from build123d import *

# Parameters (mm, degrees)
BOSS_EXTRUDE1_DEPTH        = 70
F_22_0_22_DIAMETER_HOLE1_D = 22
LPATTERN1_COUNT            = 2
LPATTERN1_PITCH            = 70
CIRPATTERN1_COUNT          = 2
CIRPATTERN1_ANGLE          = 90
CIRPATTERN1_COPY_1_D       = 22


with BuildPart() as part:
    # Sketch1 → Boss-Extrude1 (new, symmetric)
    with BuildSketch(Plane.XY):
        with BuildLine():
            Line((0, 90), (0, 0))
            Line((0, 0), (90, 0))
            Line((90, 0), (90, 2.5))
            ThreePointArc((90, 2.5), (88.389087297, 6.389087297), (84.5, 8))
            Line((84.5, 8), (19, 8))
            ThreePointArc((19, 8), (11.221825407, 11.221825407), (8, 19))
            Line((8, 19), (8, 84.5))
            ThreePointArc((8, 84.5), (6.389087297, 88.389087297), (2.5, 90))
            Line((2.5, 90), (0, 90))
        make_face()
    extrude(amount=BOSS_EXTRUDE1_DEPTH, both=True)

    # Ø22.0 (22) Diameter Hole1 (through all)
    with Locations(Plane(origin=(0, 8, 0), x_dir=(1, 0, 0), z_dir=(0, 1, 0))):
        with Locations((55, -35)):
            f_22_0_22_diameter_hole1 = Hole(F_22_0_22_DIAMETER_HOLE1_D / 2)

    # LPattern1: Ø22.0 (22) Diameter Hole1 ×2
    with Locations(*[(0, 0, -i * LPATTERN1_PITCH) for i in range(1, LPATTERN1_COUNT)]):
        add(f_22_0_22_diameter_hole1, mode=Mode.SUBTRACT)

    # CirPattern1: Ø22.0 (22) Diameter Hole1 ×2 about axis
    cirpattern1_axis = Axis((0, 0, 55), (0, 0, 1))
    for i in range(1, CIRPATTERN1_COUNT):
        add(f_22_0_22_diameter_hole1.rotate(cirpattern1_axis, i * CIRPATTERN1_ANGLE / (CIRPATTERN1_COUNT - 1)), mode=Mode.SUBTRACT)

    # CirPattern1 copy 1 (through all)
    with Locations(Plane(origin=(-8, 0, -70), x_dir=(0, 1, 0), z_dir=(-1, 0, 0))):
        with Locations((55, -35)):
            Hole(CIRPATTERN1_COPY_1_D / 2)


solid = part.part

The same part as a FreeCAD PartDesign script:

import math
import FreeCAD as App
import Part
import Sketcher

doc = App.newDocument("Part")
body = doc.addObject("PartDesign::Body", "Body")

# Sketch on XY plane
sketch1 = doc.addObject("Sketcher::SketchObject", "Sketch")
body.addObject(sketch1)
sketch1.AttachmentSupport = (doc.XY_Plane, [""])
sketch1.MapMode = "FlatFace"
sketch1.addGeometry(Part.LineSegment(App.Vector(0, 90, 0), App.Vector(0, 0, 0)), False)
sketch1.addGeometry(Part.LineSegment(App.Vector(0, 0, 0), App.Vector(90, 0, 0)), False)
sketch1.addGeometry(Part.LineSegment(App.Vector(90, 0, 0), App.Vector(90, 2.5, 0)), False)
sketch1.addGeometry(Part.ArcOfCircle(Part.Circle(App.Vector(84.5, 2.5, 0), App.Vector(0, 0, 1), 5.5), math.radians(0), math.radians(90)), False)
sketch1.addGeometry(Part.LineSegment(App.Vector(84.5, 8, 0), App.Vector(19, 8, 0)), False)
sketch1.addGeometry(Part.ArcOfCircle(Part.Circle(App.Vector(19, 19, 0), App.Vector(0, 0, 1), 11), math.radians(180), math.radians(270)), False)
sketch1.addGeometry(Part.LineSegment(App.Vector(8, 19, 0), App.Vector(8, 84.5, 0)), False)
sketch1.addGeometry(Part.ArcOfCircle(Part.Circle(App.Vector(2.5, 84.5, 0), App.Vector(0, 0, 1), 5.5), math.radians(0), math.radians(90)), False)
sketch1.addGeometry(Part.LineSegment(App.Vector(2.5, 90, 0), App.Vector(0, 90, 0)), False)
sketch1.addConstraint(Sketcher.Constraint("Coincident", 0, 2, 1, 1))
sketch1.addConstraint(Sketcher.Constraint("Coincident", 1, 2, 2, 1))
sketch1.addConstraint(Sketcher.Constraint("Tangent", 2, 2, 3, 1))
sketch1.addConstraint(Sketcher.Constraint("Tangent", 3, 2, 4, 1))
sketch1.addConstraint(Sketcher.Constraint("Tangent", 4, 2, 5, 2))
sketch1.addConstraint(Sketcher.Constraint("Tangent", 5, 1, 6, 1))
sketch1.addConstraint(Sketcher.Constraint("Tangent", 6, 2, 7, 1))
sketch1.addConstraint(Sketcher.Constraint("Tangent", 7, 2, 8, 1))
sketch1.addConstraint(Sketcher.Constraint("Coincident", 8, 2, 0, 1))
sketch1.addConstraint(Sketcher.Constraint("Vertical", 0))
sketch1.addConstraint(Sketcher.Constraint("Horizontal", 1))
sketch1.addConstraint(Sketcher.Constraint("Vertical", 2))
sketch1.addConstraint(Sketcher.Constraint("Horizontal", 4))
sketch1.addConstraint(Sketcher.Constraint("Vertical", 6))
sketch1.addConstraint(Sketcher.Constraint("Horizontal", 8))
sketch1.addConstraint(Sketcher.Constraint("Coincident", 0, 2, -1, 1))
sketch1.addConstraint(Sketcher.Constraint("Equal", 3, 7))
sketch1.addConstraint(Sketcher.Constraint("Equal", 1, 0))
sketch1.addConstraint(Sketcher.Constraint("Equal", 8, 2))
sketch1.addConstraint(Sketcher.Constraint("Radius", 5, 11.0))
sketch1.addConstraint(Sketcher.Constraint("Radius", 3, 5.5))
sketch1.addConstraint(Sketcher.Constraint("DistanceX", 1, 1, 1, 2, 90.0))
sketch1.addConstraint(Sketcher.Constraint("DistanceX", 4, 2, 4, 1, 65.5))
pad1 = doc.addObject("PartDesign::Pad", "Pad")
body.addObject(pad1)
pad1.Profile = sketch1
pad1.Length = 140
pad1.Midplane = True

# Sketch on XZ plane
sketch2 = doc.addObject("Sketcher::SketchObject", "Sketch001")
body.addObject(sketch2)
sketch2.AttachmentSupport = (doc.XZ_Plane, [""])
sketch2.MapMode = "FlatFace"
sketch2.AttachmentOffset = App.Placement(App.Vector(0, 0, -8), App.Rotation())
sketch2.addGeometry(Part.Circle(App.Vector(55, 35, 0), App.Vector(0, 0, 1), 11), False)
sketch2.addConstraint(Sketcher.Constraint("Diameter", 0, 22.0))
sketch2.addConstraint(Sketcher.Constraint("DistanceX", -1, 1, 0, 3, 55.0))
sketch2.addConstraint(Sketcher.Constraint("DistanceY", -1, 1, 0, 3, 35.0))
doc.recompute()
hole = doc.addObject("PartDesign::Hole", "Hole")
body.addObject(hole)
hole.Profile = sketch2
hole.ThreadType = "None"
hole.Diameter = 22
hole.DepthType = "ThroughAll"
hole.Reversed = True
doc.recompute()

linearpattern = doc.addObject("PartDesign::LinearPattern", "LinearPattern")
body.addObject(linearpattern)
linearpattern.Originals = [hole]
linearpattern.Direction = (doc.Z_Axis, [""])
linearpattern.Mode = "offset"
linearpattern.Offset = 70
linearpattern.Occurrences = 2
linearpattern.Reversed = True
body.Tip = linearpattern
doc.recompute()

polarpattern = doc.addObject("PartDesign::PolarPattern", "PolarPattern")
body.addObject(polarpattern)
polarpattern.Originals = [hole]
polarpattern.Axis = (doc.Z_Axis, [""])
polarpattern.Angle = 90
polarpattern.Occurrences = 2
body.Tip = polarpattern

# Sketch on YZ plane
sketch3 = doc.addObject("Sketcher::SketchObject", "Sketch002")
body.addObject(sketch3)
sketch3.AttachmentSupport = (doc.YZ_Plane, [""])
sketch3.MapMode = "FlatFace"
sketch3.AttachmentOffset = App.Placement(App.Vector(0, 0, -8), App.Rotation())
sketch3.addGeometry(Part.Circle(App.Vector(55, -35, 0), App.Vector(0, 0, 1), 11), False)
sketch3.addConstraint(Sketcher.Constraint("Diameter", 0, 22.0))
sketch3.addConstraint(Sketcher.Constraint("DistanceX", -1, 1, 0, 3, 55.0))
sketch3.addConstraint(Sketcher.Constraint("DistanceY", 0, 3, -1, 1, 35.0))
doc.recompute()
hole2 = doc.addObject("PartDesign::Hole", "Hole001")
body.addObject(hole2)
hole2.Profile = sketch3
hole2.ThreadType = "None"
hole2.Diameter = 22
hole2.DepthType = "ThroughAll"
hole2.Reversed = True

doc.recompute()
